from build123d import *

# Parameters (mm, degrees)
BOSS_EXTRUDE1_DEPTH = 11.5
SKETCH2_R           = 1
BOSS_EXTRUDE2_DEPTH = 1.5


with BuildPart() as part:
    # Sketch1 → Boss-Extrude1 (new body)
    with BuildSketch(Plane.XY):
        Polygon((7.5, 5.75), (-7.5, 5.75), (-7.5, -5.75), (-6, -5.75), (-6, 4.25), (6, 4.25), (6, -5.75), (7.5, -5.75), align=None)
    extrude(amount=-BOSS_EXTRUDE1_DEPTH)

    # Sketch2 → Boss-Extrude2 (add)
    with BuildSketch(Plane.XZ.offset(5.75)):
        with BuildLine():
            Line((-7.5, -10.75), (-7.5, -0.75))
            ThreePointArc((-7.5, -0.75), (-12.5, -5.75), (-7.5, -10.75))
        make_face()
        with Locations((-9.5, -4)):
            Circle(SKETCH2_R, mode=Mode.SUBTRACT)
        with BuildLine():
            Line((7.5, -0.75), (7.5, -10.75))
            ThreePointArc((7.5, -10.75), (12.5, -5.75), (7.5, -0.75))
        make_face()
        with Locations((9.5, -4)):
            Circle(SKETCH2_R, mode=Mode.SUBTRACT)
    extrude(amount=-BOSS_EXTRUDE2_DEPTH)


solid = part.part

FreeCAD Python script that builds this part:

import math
import FreeCAD as App
import Part
import Sketcher
from FreeCAD import Vector

doc = App.newDocument("Part")
body = doc.addObject("PartDesign::Body", "Body")

sketch1 = body.newObject("Sketcher::SketchObject", "Sketch")
sketch1.AttachmentSupport = (doc.getObject("XY_Plane"), [""])
sketch1.MapMode = "FlatFace"
sketch1.addGeometry([
    Part.LineSegment(Vector(7.5, 5.8, 0), Vector(-7.5, 5.8, 0)),
    Part.LineSegment(Vector(-7.5, 5.8, 0), Vector(-7.5, -5.8, 0)),
    Part.LineSegment(Vector(-7.5, -5.8, 0), Vector(-6, -5.8, 0)),
    Part.LineSegment(Vector(-6, -5.8, 0), Vector(-6, 4.2, 0)),
    Part.LineSegment(Vector(-6, 4.2, 0), Vector(6, 4.2, 0)),
    Part.LineSegment(Vector(6, 4.2, 0), Vector(6, -5.8, 0)),
    Part.LineSegment(Vector(6, -5.8, 0), Vector(7.5, -5.8, 0)),
    Part.LineSegment(Vector(7.5, -5.8, 0), Vector(7.5, 5.8, 0)),
], False)
sketch1.addConstraint([
    Sketcher.Constraint("Coincident", 0, 2, 1, 1),
    Sketcher.Constraint("Coincident", 1, 2, 2, 1),
    Sketcher.Constraint("Coincident", 2, 2, 3, 1),
    Sketcher.Constraint("Coincident", 3, 2, 4, 1),
    Sketcher.Constraint("Coincident", 4, 2, 5, 1),
    Sketcher.Constraint("Coincident", 5, 2, 6, 1),
    Sketcher.Constraint("Coincident", 6, 2, 7, 1),
    Sketcher.Constraint("Coincident", 7, 2, 0, 1),
    Sketcher.Constraint("Horizontal", 0),
    Sketcher.Constraint("Vertical", 1),
    Sketcher.Constraint("Horizontal", 2),
    Sketcher.Constraint("Vertical", 3),
    Sketcher.Constraint("Horizontal", 4),
    Sketcher.Constraint("Vertical", 5),
    Sketcher.Constraint("Horizontal", 6),
    Sketcher.Constraint("Vertical", 7),
    Sketcher.Constraint("Symmetric", 0, 2, 6, 2, -1, 1),
    Sketcher.Constraint("Symmetric", 2, 2, 5, 2, -2),
    Sketcher.Constraint("DistanceX", 0, 2, 0, 1, 15.0),
    Sketcher.Constraint("DistanceX", 4, 1, 4, 2, 12.0),
    Sketcher.Constraint("DistanceY", 3, 1, 3, 2, 10.0),
    Sketcher.Constraint("DistanceY", 1, 2, 1, 1, 11.5),
])
pad1 = body.newObject("PartDesign::Pad", "Pad")
pad1.Profile = sketch1
pad1.Length = 11.5
pad1.Reversed = True

sketch2 = body.newObject("Sketcher::SketchObject", "Sketch001")
sketch2.AttachmentSupport = (doc.getObject("XZ_Plane"), [""])
sketch2.MapMode = "FlatFace"
sketch2.AttachmentOffset = App.Placement(Vector(0, 0, 5.75), App.Rotation())
sketch2.addGeometry([
    Part.LineSegment(Vector(-7.5, -10.8, 0), Vector(-7.5, -0.8, 0)),
    Part.ArcOfCircle(Part.Circle(Vector(-7.5, -5.8, 0), Vector(0, 0, 1), 5), math.radians(90), math.radians(270)),
    Part.Circle(Vector(-9.5, -4, 0), Vector(0, 0, 1), 1),
    Part.LineSegment(Vector(7.5, -0.8, 0), Vector(7.5, -10.8, 0)),
    Part.ArcOfCircle(Part.Circle(Vector(7.5, -5.8, 0), Vector(0, 0, 1), 5), math.radians(-90), math.radians(90)),
    Part.Circle(Vector(9.5, -4, 0), Vector(0, 0, 1), 1),
], False)
sketch2.addConstraint([
    Sketcher.Constraint("Coincident", 0, 1, 1, 2),
    Sketcher.Constraint("Coincident", 1, 1, 0, 2),
    Sketcher.Constraint("Coincident", 3, 1, 4, 2),
    Sketcher.Constraint("Coincident", 4, 1, 3, 2),
    Sketcher.Constraint("Vertical", 0),
    Sketcher.Constraint("Vertical", 3),
    Sketcher.Constraint("Equal", 1, 4),
    Sketcher.Constraint("Equal", 2, 5),
    Sketcher.Constraint("Symmetric", 1, 3, 4, 3, -2),
    Sketcher.Constraint("Symmetric", 2, 3, 5, 3, -2),
    Sketcher.Constraint("Vertical", 1, 3, 0, 1),
    Sketcher.Constraint("Vertical", 4, 3, 3, 1),
    Sketcher.Constraint("Diameter", 2, 2.0),
    Sketcher.Constraint("Radius", 1, 5.0),
    Sketcher.Constraint("DistanceY", 2, 3, -1, 1, 4.0),
    Sketcher.Constraint("DistanceX", 2, 3, 1, 3, 2.0),
    Sketcher.Constraint("DistanceX", 1, 3, 4, 3, 15.0),
    Sketcher.Constraint("DistanceY", 1, 3, -1, 1, 5.75),
])
pad2 = body.newObject("PartDesign::Pad", "Pad001")
pad2.Profile = sketch2
pad2.Length = 1.5
pad2.Reversed = True

doc.recompute()
